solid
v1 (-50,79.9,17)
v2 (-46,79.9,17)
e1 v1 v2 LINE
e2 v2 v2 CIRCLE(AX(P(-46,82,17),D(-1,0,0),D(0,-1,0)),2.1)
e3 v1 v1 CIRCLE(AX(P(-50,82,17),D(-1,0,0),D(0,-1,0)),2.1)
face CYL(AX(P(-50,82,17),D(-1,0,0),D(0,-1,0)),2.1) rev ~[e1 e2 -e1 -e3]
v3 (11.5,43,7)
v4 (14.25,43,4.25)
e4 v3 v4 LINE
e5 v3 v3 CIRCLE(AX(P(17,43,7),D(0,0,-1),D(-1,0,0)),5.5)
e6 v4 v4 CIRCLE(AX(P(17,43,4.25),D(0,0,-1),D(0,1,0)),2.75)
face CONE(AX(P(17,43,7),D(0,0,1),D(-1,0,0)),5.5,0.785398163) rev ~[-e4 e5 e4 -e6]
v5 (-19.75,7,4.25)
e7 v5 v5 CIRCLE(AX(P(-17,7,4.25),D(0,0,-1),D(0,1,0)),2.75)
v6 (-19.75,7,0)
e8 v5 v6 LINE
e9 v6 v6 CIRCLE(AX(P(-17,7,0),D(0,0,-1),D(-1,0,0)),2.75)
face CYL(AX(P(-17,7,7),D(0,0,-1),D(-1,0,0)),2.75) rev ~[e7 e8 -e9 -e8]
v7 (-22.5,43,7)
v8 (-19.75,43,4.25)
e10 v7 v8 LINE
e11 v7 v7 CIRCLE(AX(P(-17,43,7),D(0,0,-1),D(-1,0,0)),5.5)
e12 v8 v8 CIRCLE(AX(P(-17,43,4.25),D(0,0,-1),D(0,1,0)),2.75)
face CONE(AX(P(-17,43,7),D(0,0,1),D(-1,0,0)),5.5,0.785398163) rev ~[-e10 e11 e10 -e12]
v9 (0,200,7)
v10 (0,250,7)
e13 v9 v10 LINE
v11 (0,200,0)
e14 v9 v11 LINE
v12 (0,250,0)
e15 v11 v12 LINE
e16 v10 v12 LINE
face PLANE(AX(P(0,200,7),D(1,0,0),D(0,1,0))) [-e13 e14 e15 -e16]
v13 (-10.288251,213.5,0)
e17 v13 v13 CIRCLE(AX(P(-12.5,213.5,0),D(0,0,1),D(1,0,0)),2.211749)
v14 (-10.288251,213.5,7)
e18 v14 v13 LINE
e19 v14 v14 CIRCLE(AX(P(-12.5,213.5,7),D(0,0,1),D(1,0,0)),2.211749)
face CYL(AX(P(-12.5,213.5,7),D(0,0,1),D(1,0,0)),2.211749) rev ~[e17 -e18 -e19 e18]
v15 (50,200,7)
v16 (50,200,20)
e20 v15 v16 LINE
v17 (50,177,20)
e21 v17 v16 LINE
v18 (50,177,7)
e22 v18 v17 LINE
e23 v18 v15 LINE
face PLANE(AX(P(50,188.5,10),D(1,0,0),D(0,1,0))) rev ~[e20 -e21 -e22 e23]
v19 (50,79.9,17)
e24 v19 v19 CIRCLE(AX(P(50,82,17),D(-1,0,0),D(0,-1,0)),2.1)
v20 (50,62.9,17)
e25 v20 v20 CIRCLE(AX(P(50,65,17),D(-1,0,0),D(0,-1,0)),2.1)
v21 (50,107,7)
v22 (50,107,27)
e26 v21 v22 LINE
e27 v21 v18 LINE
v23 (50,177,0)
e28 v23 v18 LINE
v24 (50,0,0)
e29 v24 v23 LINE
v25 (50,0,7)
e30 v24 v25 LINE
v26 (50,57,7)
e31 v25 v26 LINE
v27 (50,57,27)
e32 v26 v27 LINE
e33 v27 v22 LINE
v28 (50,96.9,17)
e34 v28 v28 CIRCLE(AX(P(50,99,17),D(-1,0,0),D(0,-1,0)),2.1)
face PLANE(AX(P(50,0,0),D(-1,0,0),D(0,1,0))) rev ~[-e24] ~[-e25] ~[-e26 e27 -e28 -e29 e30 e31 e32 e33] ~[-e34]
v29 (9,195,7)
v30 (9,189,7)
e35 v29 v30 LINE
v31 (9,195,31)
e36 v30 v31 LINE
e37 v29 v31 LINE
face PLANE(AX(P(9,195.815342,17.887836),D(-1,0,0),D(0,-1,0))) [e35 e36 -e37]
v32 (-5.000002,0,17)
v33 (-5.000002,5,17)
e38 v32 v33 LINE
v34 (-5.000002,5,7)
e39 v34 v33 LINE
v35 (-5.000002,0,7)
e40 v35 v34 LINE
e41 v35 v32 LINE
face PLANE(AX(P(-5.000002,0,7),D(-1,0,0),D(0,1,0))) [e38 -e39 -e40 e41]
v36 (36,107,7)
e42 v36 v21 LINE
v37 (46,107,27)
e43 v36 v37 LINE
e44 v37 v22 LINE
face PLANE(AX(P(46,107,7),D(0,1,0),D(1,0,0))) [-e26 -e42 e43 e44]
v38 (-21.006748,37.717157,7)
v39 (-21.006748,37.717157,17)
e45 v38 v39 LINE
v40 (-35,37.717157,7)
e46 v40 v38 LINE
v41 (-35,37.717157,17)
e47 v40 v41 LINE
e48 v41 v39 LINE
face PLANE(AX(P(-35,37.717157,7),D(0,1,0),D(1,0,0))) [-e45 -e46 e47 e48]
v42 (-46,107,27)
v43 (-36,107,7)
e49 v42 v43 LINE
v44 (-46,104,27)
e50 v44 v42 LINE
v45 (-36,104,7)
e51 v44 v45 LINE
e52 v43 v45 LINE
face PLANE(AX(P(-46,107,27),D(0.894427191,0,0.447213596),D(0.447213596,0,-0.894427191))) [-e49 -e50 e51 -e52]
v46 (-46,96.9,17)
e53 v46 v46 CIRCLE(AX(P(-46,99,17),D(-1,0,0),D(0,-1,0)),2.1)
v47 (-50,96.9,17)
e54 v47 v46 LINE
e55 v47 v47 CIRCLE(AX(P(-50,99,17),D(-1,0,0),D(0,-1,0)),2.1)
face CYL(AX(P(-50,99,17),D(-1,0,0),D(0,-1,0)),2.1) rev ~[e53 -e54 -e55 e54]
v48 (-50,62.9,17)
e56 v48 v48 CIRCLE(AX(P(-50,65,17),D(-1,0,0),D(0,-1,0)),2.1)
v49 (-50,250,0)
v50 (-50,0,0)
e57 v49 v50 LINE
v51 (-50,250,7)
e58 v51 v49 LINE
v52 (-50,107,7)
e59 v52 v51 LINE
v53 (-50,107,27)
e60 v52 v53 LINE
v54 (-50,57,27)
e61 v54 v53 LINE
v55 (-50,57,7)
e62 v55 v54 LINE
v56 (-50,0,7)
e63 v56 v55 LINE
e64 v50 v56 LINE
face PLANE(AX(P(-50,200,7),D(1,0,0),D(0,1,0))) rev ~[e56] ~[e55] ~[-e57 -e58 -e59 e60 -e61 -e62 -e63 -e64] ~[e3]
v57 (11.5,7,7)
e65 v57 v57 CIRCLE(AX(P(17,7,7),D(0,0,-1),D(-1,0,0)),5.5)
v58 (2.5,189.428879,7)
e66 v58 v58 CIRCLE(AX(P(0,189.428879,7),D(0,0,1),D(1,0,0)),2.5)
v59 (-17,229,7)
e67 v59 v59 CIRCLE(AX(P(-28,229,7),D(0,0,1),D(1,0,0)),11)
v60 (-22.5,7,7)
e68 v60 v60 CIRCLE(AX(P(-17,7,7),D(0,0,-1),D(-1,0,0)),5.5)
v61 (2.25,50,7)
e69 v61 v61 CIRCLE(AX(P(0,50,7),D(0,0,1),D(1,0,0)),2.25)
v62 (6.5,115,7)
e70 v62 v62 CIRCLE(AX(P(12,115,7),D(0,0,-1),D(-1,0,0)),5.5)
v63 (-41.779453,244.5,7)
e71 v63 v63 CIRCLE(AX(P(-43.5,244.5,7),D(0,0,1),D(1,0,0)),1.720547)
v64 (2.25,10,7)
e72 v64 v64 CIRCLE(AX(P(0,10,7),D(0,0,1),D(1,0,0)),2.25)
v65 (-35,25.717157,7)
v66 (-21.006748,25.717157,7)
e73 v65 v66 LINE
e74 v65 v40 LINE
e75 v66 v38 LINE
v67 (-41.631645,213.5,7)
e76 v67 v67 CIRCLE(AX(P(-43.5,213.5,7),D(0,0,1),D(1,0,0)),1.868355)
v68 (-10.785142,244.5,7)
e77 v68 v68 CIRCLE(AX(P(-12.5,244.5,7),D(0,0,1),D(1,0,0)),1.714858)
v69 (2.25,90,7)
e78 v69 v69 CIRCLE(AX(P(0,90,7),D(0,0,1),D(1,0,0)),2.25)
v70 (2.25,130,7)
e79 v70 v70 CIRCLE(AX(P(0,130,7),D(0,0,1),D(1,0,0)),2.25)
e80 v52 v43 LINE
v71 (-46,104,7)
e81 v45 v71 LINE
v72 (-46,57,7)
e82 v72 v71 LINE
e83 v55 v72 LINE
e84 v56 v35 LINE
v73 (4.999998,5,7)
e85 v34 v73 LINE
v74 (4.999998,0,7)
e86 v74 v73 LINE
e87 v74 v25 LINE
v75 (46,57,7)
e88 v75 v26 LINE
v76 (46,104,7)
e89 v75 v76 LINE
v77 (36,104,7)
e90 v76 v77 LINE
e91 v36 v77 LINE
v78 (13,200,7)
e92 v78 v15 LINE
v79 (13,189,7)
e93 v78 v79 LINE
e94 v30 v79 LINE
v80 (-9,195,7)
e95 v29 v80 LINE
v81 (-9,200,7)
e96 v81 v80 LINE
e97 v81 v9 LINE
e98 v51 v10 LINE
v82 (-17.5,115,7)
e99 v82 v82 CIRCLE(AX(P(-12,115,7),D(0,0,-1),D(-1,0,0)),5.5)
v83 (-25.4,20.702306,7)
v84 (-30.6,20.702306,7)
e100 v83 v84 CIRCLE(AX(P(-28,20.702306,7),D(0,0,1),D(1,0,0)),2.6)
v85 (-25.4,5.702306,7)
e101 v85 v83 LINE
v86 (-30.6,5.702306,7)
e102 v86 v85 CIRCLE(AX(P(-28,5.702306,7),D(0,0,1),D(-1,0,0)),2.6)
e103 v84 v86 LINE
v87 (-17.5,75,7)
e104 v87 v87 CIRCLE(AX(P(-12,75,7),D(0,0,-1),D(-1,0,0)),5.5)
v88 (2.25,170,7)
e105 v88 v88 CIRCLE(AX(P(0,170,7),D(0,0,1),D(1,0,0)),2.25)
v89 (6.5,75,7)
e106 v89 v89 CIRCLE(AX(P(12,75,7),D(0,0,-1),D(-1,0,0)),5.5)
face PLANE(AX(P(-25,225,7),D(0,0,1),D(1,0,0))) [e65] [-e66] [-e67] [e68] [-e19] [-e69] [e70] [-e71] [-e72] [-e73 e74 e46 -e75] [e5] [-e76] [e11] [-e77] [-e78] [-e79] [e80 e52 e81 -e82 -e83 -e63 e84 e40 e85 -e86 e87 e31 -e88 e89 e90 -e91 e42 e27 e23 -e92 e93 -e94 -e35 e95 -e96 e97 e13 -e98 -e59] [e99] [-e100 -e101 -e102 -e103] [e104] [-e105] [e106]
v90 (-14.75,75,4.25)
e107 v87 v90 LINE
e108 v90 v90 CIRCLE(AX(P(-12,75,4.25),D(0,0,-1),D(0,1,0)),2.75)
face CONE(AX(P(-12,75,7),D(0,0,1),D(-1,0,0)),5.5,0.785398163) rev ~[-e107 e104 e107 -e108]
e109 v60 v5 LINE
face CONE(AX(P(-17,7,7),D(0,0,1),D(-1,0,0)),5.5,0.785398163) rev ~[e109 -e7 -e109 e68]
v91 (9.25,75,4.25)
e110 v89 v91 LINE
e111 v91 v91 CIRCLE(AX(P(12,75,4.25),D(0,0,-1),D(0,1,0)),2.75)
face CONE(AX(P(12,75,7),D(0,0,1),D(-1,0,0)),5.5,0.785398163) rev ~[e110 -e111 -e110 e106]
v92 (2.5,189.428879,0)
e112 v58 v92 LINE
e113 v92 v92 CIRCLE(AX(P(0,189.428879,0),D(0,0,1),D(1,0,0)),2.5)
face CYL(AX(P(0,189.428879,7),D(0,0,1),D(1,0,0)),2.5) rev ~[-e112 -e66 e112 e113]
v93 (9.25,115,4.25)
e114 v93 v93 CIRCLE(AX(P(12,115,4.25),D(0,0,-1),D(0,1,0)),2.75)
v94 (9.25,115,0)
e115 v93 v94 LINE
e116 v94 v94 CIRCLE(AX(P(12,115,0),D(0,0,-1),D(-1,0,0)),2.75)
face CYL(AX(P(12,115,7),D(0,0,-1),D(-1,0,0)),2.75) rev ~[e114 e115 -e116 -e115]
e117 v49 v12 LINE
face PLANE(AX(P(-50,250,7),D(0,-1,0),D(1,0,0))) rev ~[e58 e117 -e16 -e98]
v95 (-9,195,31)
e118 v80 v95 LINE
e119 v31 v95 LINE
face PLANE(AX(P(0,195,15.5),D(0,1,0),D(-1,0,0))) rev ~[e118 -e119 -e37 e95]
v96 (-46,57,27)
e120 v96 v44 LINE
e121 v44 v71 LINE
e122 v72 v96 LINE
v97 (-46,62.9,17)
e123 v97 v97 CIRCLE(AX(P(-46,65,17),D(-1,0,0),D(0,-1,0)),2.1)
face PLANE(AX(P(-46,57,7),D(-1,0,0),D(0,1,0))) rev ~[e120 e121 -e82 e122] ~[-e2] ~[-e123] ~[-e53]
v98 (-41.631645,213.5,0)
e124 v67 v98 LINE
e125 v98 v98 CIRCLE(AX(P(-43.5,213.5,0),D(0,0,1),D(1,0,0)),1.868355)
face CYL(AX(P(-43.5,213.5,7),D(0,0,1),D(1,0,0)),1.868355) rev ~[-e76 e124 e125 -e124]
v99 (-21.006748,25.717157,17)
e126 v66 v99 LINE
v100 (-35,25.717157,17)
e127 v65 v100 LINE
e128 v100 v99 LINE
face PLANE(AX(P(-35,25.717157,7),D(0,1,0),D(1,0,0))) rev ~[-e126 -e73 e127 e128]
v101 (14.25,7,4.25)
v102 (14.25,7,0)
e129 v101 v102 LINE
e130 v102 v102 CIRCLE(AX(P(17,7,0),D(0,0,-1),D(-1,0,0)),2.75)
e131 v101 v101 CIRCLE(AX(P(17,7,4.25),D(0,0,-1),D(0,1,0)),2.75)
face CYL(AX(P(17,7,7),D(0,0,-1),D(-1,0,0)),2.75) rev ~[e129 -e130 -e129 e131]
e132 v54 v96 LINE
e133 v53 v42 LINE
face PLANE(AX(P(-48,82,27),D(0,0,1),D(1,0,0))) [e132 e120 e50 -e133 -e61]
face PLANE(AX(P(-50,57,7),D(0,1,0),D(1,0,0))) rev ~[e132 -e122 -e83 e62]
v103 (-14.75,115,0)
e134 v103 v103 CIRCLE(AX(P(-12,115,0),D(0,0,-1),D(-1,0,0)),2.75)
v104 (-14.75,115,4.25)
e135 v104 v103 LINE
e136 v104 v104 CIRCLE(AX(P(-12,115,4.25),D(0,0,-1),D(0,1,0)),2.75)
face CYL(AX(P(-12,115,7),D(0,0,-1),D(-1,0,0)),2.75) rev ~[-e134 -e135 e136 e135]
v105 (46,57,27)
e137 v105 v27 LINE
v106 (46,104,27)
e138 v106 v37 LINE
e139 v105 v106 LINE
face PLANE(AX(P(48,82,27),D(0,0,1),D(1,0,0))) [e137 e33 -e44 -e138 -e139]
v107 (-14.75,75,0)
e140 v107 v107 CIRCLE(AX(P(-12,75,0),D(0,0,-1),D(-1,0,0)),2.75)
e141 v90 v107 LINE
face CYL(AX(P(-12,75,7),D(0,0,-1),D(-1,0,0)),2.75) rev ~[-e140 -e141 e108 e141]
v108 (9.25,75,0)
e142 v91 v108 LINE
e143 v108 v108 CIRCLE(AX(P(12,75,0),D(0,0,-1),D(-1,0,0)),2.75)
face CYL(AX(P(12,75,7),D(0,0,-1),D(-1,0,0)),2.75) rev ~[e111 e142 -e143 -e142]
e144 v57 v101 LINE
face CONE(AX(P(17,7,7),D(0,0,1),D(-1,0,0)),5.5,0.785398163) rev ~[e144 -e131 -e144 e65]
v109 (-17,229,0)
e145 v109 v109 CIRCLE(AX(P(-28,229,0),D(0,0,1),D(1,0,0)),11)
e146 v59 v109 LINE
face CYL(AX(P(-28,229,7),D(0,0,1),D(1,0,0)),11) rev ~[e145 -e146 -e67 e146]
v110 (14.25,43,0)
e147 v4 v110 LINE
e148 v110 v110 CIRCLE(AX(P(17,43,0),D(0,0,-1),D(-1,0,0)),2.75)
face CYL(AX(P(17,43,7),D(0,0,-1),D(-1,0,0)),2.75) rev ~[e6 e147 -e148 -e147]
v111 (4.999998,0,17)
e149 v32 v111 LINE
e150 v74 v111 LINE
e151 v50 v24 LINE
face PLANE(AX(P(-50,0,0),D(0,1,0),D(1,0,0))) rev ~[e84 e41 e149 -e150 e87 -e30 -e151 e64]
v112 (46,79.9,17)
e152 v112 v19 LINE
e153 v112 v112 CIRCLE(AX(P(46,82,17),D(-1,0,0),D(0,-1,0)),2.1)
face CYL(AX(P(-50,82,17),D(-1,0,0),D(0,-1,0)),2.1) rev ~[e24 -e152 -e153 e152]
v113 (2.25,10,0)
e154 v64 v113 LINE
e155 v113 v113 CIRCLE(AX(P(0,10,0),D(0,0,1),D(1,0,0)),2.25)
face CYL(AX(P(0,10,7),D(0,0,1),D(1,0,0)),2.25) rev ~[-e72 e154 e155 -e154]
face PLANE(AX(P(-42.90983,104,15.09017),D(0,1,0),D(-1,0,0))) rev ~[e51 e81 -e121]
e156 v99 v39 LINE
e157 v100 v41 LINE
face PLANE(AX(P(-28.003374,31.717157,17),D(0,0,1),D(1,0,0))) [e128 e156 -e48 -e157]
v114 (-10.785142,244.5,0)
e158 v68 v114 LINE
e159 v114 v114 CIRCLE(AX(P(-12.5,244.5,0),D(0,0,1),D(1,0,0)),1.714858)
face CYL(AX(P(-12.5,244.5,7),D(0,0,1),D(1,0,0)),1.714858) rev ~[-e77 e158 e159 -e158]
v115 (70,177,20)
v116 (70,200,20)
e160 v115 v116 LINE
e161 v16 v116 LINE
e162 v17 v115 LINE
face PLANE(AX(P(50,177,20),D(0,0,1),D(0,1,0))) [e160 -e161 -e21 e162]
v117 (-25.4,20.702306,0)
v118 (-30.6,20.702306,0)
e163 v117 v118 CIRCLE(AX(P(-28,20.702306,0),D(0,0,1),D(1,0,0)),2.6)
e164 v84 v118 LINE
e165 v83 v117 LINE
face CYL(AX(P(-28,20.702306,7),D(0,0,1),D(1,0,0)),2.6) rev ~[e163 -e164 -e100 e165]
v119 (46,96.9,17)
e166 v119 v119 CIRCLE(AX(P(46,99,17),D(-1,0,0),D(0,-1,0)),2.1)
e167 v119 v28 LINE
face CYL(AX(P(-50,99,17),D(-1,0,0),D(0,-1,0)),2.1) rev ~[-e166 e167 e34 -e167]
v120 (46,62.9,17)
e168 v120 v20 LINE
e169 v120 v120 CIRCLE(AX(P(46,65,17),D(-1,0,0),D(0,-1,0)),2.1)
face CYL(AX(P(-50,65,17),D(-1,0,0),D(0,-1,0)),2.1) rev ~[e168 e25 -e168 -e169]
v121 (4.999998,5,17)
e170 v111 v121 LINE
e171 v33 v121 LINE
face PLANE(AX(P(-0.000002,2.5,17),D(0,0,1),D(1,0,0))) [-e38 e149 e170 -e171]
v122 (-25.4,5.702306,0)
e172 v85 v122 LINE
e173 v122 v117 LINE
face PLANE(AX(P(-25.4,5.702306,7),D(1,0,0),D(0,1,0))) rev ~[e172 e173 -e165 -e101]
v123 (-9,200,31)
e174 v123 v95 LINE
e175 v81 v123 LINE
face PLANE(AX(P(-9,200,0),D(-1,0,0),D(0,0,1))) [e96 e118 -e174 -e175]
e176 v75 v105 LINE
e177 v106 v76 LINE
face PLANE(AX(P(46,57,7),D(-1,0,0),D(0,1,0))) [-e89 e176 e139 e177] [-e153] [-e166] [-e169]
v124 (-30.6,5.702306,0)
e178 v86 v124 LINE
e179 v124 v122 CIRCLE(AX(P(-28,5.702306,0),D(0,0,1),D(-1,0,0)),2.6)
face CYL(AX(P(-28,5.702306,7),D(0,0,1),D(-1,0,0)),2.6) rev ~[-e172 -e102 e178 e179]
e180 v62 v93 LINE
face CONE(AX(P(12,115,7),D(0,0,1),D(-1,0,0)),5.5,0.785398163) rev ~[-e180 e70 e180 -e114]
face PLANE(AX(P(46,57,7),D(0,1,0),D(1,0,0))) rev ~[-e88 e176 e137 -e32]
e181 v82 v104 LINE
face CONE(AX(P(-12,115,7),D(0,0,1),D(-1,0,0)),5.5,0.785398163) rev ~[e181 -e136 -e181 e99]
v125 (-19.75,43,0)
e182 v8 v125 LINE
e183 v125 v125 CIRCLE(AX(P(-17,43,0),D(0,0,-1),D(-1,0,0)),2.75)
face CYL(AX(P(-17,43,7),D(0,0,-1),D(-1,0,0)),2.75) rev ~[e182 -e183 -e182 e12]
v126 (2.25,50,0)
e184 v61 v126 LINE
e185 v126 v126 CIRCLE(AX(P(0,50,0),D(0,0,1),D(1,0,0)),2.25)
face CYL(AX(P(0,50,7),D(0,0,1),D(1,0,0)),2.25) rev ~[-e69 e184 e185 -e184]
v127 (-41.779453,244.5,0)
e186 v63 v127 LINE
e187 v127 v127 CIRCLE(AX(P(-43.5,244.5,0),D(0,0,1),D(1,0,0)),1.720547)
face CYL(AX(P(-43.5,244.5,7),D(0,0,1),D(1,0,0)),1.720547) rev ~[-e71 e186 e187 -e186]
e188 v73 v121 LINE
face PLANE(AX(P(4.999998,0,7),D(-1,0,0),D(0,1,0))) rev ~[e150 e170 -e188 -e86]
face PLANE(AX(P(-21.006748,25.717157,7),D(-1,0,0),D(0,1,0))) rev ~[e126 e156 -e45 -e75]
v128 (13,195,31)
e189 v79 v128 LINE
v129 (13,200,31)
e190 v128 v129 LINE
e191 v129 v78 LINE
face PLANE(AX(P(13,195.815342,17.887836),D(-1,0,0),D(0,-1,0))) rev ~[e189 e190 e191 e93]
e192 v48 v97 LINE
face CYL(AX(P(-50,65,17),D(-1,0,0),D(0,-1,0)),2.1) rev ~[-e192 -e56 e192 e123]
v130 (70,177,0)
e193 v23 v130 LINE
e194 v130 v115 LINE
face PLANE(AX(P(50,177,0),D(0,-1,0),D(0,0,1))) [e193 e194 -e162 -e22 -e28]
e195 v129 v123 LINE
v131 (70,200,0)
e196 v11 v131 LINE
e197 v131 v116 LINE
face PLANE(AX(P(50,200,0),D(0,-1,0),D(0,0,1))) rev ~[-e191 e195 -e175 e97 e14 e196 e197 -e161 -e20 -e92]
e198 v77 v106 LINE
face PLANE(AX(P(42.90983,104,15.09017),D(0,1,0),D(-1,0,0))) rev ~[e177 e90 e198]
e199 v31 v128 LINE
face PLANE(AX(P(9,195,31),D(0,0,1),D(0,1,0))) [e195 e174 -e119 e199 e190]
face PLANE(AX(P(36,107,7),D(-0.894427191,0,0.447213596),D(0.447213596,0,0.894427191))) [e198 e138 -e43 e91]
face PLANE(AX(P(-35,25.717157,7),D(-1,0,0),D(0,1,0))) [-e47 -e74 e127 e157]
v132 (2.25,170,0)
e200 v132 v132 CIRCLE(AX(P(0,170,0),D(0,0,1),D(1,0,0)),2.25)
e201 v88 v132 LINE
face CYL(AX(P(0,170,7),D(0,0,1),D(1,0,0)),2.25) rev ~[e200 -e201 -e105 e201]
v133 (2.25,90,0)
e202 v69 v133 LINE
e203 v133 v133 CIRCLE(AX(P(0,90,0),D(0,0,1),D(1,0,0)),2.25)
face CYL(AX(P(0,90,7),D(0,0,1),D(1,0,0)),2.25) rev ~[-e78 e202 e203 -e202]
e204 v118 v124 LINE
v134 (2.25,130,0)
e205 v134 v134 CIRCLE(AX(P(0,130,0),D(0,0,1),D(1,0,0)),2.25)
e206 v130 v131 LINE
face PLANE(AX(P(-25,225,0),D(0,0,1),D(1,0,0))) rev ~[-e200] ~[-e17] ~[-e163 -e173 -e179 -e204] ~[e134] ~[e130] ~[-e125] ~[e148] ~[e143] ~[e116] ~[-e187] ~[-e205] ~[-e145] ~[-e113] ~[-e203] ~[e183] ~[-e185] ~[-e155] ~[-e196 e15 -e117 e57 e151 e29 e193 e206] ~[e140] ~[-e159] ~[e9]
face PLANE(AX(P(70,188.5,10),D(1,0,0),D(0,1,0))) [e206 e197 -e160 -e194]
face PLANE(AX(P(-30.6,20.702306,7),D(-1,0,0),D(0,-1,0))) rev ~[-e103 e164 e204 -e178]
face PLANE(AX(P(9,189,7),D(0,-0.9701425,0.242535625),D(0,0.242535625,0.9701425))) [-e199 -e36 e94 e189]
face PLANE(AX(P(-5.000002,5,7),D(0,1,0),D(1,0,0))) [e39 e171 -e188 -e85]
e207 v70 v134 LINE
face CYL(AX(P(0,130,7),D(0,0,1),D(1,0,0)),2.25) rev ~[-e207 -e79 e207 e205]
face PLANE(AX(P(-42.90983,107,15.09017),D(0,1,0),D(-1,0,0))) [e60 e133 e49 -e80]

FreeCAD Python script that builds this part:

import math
import FreeCAD as App
import Part
import Sketcher

V = App.Vector

doc = App.newDocument("Part")
body = doc.addObject("PartDesign::Body", "Body")

# Sketch on XY plane
sketch1 = body.newObject("Sketcher::SketchObject", "Sketch")
sketch1.AttachmentSupport = (doc.getObject("XY_Plane"), [""])
sketch1.MapMode = "FlatFace"
sketch1.addGeometry(Part.LineSegment(V(-50, 200, 0), V(-50, 0, 0)), False)
sketch1.addGeometry(Part.LineSegment(V(-50, 0, 0), V(50, 0, 0)), False)
sketch1.addGeometry(Part.LineSegment(V(50, 0, 0), V(50, 200, 0)), False)
sketch1.addGeometry(Part.LineSegment(V(50, 200, 0), V(-50, 200, 0)), False)
sketch1.addConstraint(Sketcher.Constraint("Coincident", 0, 2, 1, 1))
sketch1.addConstraint(Sketcher.Constraint("Coincident", 1, 2, 2, 1))
sketch1.addConstraint(Sketcher.Constraint("Coincident", 2, 2, 3, 1))
sketch1.addConstraint(Sketcher.Constraint("Coincident", 3, 2, 0, 1))
sketch1.addConstraint(Sketcher.Constraint("Vertical", 0))
sketch1.addConstraint(Sketcher.Constraint("Horizontal", 1))
sketch1.addConstraint(Sketcher.Constraint("Vertical", 2))
sketch1.addConstraint(Sketcher.Constraint("Horizontal", 3))
sketch1.addConstraint(Sketcher.Constraint("Symmetric", 0, 2, 1, 2, -1, 1))
sketch1.addConstraint(Sketcher.Constraint("DistanceX", 1, 1, 1, 2, 100.0))
sketch1.addConstraint(Sketcher.Constraint("DistanceY", 0, 2, 0, 1, 200.0))
pad1 = body.newObject("PartDesign::Pad", "Pad")
pad1.Profile = sketch1
pad1.Length = 7

# Sketch on XY plane
sketch2 = body.newObject("Sketcher::SketchObject", "Sketch001")
sketch2.AttachmentSupport = (doc.getObject("XY_Plane"), [""])
sketch2.MapMode = "FlatFace"
sketch2.AttachmentOffset = App.Placement(V(0, 0, 7), App.Rotation())
sketch2.addGeometry(Part.Circle(V(17, 7, 0), V(0, 0, 1), 2.8), False)
sketch2.addGeometry(Part.Circle(V(17, 43, 0), V(0, 0, 1), 2.8), False)
sketch2.addGeometry(Part.Circle(V(-17, 43, 0), V(0, 0, 1), 2.8), False)
sketch2.addGeometry(Part.Circle(V(-17, 7, 0), V(0, 0, 1), 2.8), False)
sketch2.addGeometry(Part.Circle(V(12, 115, 0), V(0, 0, 1), 2.8), False)
sketch2.addGeometry(Part.Circle(V(12, 75, 0), V(0, 0, 1), 2.8), False)
sketch2.addGeometry(Part.Circle(V(-12, 115, 0), V(0, 0, 1), 2.8), False)
sketch2.addGeometry(Part.Circle(V(-12, 75, 0), V(0, 0, 1), 2.8), False)
sketch2.addConstraint(Sketcher.Constraint("Equal", 0, 1))
sketch2.addConstraint(Sketcher.Constraint("Equal", 1, 2))
sketch2.addConstraint(Sketcher.Constraint("Equal", 2, 3))
sketch2.addConstraint(Sketcher.Constraint("Equal", 3, 4))
sketch2.addConstraint(Sketcher.Constraint("Equal", 4, 5))
sketch2.addConstraint(Sketcher.Constraint("Equal", 5, 6))
sketch2.addConstraint(Sketcher.Constraint("Equal", 6, 7))
sketch2.addConstraint(Sketcher.Constraint("Symmetric", 1, 3, 2, 3, -2))
sketch2.addConstraint(Sketcher.Constraint("Symmetric", 0, 3, 3, 3, -2))
sketch2.addConstraint(Sketcher.Constraint("Symmetric", 4, 3, 6, 3, -2))
sketch2.addConstraint(Sketcher.Constraint("Symmetric", 5, 3, 7, 3, -2))
sketch2.addConstraint(Sketcher.Constraint("Vertical", 0, 3, 1, 3))
sketch2.addConstraint(Sketcher.Constraint("Vertical", 4, 3, 5, 3))
sketch2.addConstraint(Sketcher.Constraint("Diameter", 0, 5.5))
sketch2.addConstraint(Sketcher.Constraint("DistanceX", -1, 1, 0, 3, 17.0))
sketch2.addConstraint(Sketcher.Constraint("DistanceY", -1, 1, 0, 3, 7.0))
sketch2.addConstraint(Sketcher.Constraint("DistanceY", -1, 1, 1, 3, 43.0))
sketch2.addConstraint(Sketcher.Constraint("DistanceX", -1, 1, 4, 3, 12.0))
sketch2.addConstraint(Sketcher.Constraint("DistanceY", -1, 1, 4, 3, 115.0))
sketch2.addConstraint(Sketcher.Constraint("DistanceY", -1, 1, 5, 3, 75.0))
doc.recompute()
hole = body.newObject("PartDesign::Hole", "Hole")
hole.Profile = sketch2
hole.ThreadType = "None"
hole.Diameter = 5.5
hole.DepthType = "ThroughAll"
hole.HoleCutType = "Countersink"
hole.HoleCutDiameter = 11
hole.HoleCutCountersinkAngle = 90

# Sketch on XY plane
sketch3 = body.newObject("Sketcher::SketchObject", "Sketch002")
sketch3.AttachmentSupport = (doc.getObject("XY_Plane"), [""])
sketch3.MapMode = "FlatFace"
sketch3.AttachmentOffset = App.Placement(V(0, 0, 7), App.Rotation())
sketch3.addGeometry(Part.Circle(V(0, 10, 0), V(0, 0, 1), 2.2), False)
sketch3.addGeometry(Part.Circle(V(0, 50, 0), V(0, 0, 1), 2.2), False)
sketch3.addGeometry(Part.Circle(V(0, 90, 0), V(0, 0, 1), 2.2), False)
sketch3.addGeometry(Part.Circle(V(0, 130, 0), V(0, 0, 1), 2.2), False)
sketch3.addGeometry(Part.Circle(V(0, 170, 0), V(0, 0, 1), 2.2), False)
sketch3.addConstraint(Sketcher.Constraint("Equal", 0, 1))
sketch3.addConstraint(Sketcher.Constraint("Equal", 1, 2))
sketch3.addConstraint(Sketcher.Constraint("Equal", 2, 3))
sketch3.addConstraint(Sketcher.Constraint("Equal", 3, 4))
sketch3.addConstraint(Sketcher.Constraint("PointOnObject", 0, 3, -2))
sketch3.addConstraint(Sketcher.Constraint("PointOnObject", 1, 3, -2))
sketch3.addConstraint(Sketcher.Constraint("PointOnObject", 2, 3, -2))
sketch3.addConstraint(Sketcher.Constraint("PointOnObject", 3, 3, -2))
sketch3.addConstraint(Sketcher.Constraint("PointOnObject", 4, 3, -2))
sketch3.addConstraint(Sketcher.Constraint("Diameter", 0, 4.5))
sketch3.addConstraint(Sketcher.Constraint("DistanceY", -1, 1, 0, 3, 10.0))
sketch3.addConstraint(Sketcher.Constraint("DistanceY", -1, 1, 1, 3, 50.0))
sketch3.addConstraint(Sketcher.Constraint("DistanceY", -1, 1, 2, 3, 90.0))
sketch3.addConstraint(Sketcher.Constraint("DistanceY", -1, 1, 3, 3, 130.0))
sketch3.addConstraint(Sketcher.Constraint("DistanceY", -1, 1, 4, 3, 170.0))
pocket1 = body.newObject("PartDesign::Pocket", "Pocket")
pocket1.Profile = sketch3
pocket1.Type = "ThroughAll"

# Sketch on XY plane
sketch4 = body.newObject("Sketcher::SketchObject", "Sketch003")
sketch4.AttachmentSupport = (doc.getObject("XY_Plane"), [""])
sketch4.MapMode = "FlatFace"
sketch4.AttachmentOffset = App.Placement(V(0, 0, 7), App.Rotation())
sketch4.addGeometry(Part.LineSegment(V(-5, 5, 0), V(-5, 0, 0)), False)
sketch4.addGeometry(Part.LineSegment(V(-5, 0, 0), V(5, 0, 0)), False)
sketch4.addGeometry(Part.LineSegment(V(5, 0, 0), V(5, 5, 0)), False)
sketch4.addGeometry(Part.LineSegment(V(5, 5, 0), V(-5, 5, 0)), False)
sketch4.addConstraint(Sketcher.Constraint("Coincident", 0, 2, 1, 1))
sketch4.addConstraint(Sketcher.Constraint("Coincident", 1, 2, 2, 1))
sketch4.addConstraint(Sketcher.Constraint("Coincident", 2, 2, 3, 1))
sketch4.addConstraint(Sketcher.Constraint("Coincident", 3, 2, 0, 1))
sketch4.addConstraint(Sketcher.Constraint("Vertical", 0))
sketch4.addConstraint(Sketcher.Constraint("Horizontal", 1))
sketch4.addConstraint(Sketcher.Constraint("Vertical", 2))
sketch4.addConstraint(Sketcher.Constraint("Horizontal", 3))
sketch4.addConstraint(Sketcher.Constraint("Symmetric", 0, 2, 1, 2, -1, 1))
sketch4.addConstraint(Sketcher.Constraint("DistanceX", 1, 1, 1, 2, 10.0))
sketch4.addConstraint(Sketcher.Constraint("DistanceY", 0, 2, 0, 1, 5.0))
pad2 = body.newObject("PartDesign::Pad", "Pad001")
pad2.Profile = sketch4
pad2.Length = 10

# Sketch on XY plane
sketch5 = body.newObject("Sketcher::SketchObject", "Sketch004")
sketch5.AttachmentSupport = (doc.getObject("XY_Plane"), [""])
sketch5.MapMode = "FlatFace"
sketch5.AttachmentOffset = App.Placement(V(0, 0, 7), App.Rotation())
sketch5.addGeometry(Part.LineSegment(V(-50, 107, 0), V(-50, 57, 0)), False)
sketch5.addGeometry(Part.LineSegment(V(-50, 57, 0), V(-46, 57, 0)), False)
sketch5.addGeometry(Part.LineSegment(V(-46, 57, 0), V(-46, 107, 0)), False)
sketch5.addGeometry(Part.LineSegment(V(-46, 107, 0), V(-50, 107, 0)), False)
sketch5.addGeometry(Part.LineSegment(V(46, 107, 0), V(46, 57, 0)), False)
sketch5.addGeometry(Part.LineSegment(V(46, 57, 0), V(50, 57, 0)), False)
sketch5.addGeometry(Part.LineSegment(V(50, 57, 0), V(50, 107, 0)), False)
sketch5.addGeometry(Part.LineSegment(V(50, 107, 0), V(46, 107, 0)), False)
sketch5.addConstraint(Sketcher.Constraint("Coincident", 0, 2, 1, 1))
sketch5.addConstraint(Sketcher.Constraint("Coincident", 1, 2, 2, 1))
sketch5.addConstraint(Sketcher.Constraint("Coincident", 2, 2, 3, 1))
sketch5.addConstraint(Sketcher.Constraint("Coincident", 3, 2, 0, 1))
sketch5.addConstraint(Sketcher.Constraint("Coincident", 4, 2, 5, 1))
sketch5.addConstraint(Sketcher.Constraint("Coincident", 5, 2, 6, 1))
sketch5.addConstraint(Sketcher.Constraint("Coincident", 6, 2, 7, 1))
sketch5.addConstraint(Sketcher.Constraint("Coincident", 7, 2, 4, 1))
sketch5.addConstraint(Sketcher.Constraint("Vertical", 0))
sketch5.addConstraint(Sketcher.Constraint("Horizontal", 1))
sketch5.addConstraint(Sketcher.Constraint("Vertical", 2))
sketch5.addConstraint(Sketcher.Constraint("Horizontal", 3))
sketch5.addConstraint(Sketcher.Constraint("Vertical", 4))
sketch5.addConstraint(Sketcher.Constraint("Horizontal", 5))
sketch5.addConstraint(Sketcher.Constraint("Vertical", 6))
sketch5.addConstraint(Sketcher.Constraint("Horizontal", 7))
sketch5.addConstraint(Sketcher.Constraint("Symmetric", 1, 2, 4, 2, -2))
sketch5.addConstraint(Sketcher.Constraint("Symmetric", 3, 2, 6, 2, -2))
sketch5.addConstraint(Sketcher.Constraint("DistanceX", 1, 1, 1, 2, 4.0))
sketch5.addConstraint(Sketcher.Constraint("DistanceY", 0, 2, 0, 1, 50.0))
sketch5.addConstraint(Sketcher.Constraint("DistanceX", 0, 2, -1, 1, 50.0))
sketch5.addConstraint(Sketcher.Constraint("DistanceY", -1, 1, 0, 2, 57.0))
pad3 = body.newObject("PartDesign::Pad", "Pad002")
pad3.Profile = sketch5
pad3.Length = 20

# Sketch on XZ plane
sketch6 = body.newObject("Sketcher::SketchObject", "Sketch005")
sketch6.AttachmentSupport = (doc.getObject("XZ_Plane"), [""])
sketch6.MapMode = "FlatFace"
sketch6.AttachmentOffset = App.Placement(V(0, 0, -107), App.Rotation())
sketch6.addGeometry(Part.LineSegment(V(-46, 7, 0), V(-46, 27, 0)), False)
sketch6.addGeometry(Part.LineSegment(V(-46, 27, 0), V(-36, 7, 0)), False)
sketch6.addGeometry(Part.LineSegment(V(-36, 7, 0), V(-46, 7, 0)), False)
sketch6.addGeometry(Part.LineSegment(V(46, 27, 0), V(46, 7, 0)), False)
sketch6.addGeometry(Part.LineSegment(V(46, 7, 0), V(36, 7, 0)), False)
sketch6.addGeometry(Part.LineSegment(V(36, 7, 0), V(46, 27, 0)), False)
sketch6.addConstraint(Sketcher.Constraint("Coincident", 0, 2, 1, 1))
sketch6.addConstraint(Sketcher.Constraint("Coincident", 1, 2, 2, 1))
sketch6.addConstraint(Sketcher.Constraint("Coincident", 2, 2, 0, 1))
sketch6.addConstraint(Sketcher.Constraint("Coincident", 3, 2, 4, 1))
sketch6.addConstraint(Sketcher.Constraint("Coincident", 4, 2, 5, 1))
sketch6.addConstraint(Sketcher.Constraint("Coincident", 5, 2, 3, 1))
sketch6.addConstraint(Sketcher.Constraint("Vertical", 0))
sketch6.addConstraint(Sketcher.Constraint("Horizontal", 2))
sketch6.addConstraint(Sketcher.Constraint("Vertical", 3))
sketch6.addConstraint(Sketcher.Constraint("Horizontal", 4))
sketch6.addConstraint(Sketcher.Constraint("Symmetric", 2, 2, 3, 2, -2))
sketch6.addConstraint(Sketcher.Constraint("Horizontal", 0, 2, 5, 2))
sketch6.addConstraint(Sketcher.Constraint("Equal", 2, 4))
sketch6.addConstraint(Sketcher.Constraint("DistanceX", 2, 2, 2, 1, 10.0))
sketch6.addConstraint(Sketcher.Constraint("DistanceY", 0, 1, 0, 2, 20.0))
sketch6.addConstraint(Sketcher.Constraint("DistanceX", 0, 2, -1, 1, 46.0))
sketch6.addConstraint(Sketcher.Constraint("DistanceY", -1, 1, 0, 2, 27.0))
pad4 = body.newObject("PartDesign::Pad", "Pad003")
pad4.Profile = sketch6
pad4.Length = 3

# Sketch on XZ plane
sketch7 = body.newObject("Sketcher::SketchObject", "Sketch006")
sketch7.AttachmentSupport = (doc.getObject("XZ_Plane"), [""])
sketch7.MapMode = "FlatFace"
sketch7.AttachmentOffset = App.Placement(V(0, 0, -107), App.Rotation())
sketch7.addGeometry(Part.LineSegment(V(46, 27, 0), V(46, 7, 0)), False)
sketch7.addGeometry(Part.LineSegment(V(46, 7, 0), V(36, 7, 0)), False)
sketch7.addGeometry(Part.LineSegment(V(36, 7, 0), V(46, 27, 0)), False)
sketch7.addGeometry(Part.LineSegment(V(-46, 7, 0), V(-46, 27, 0)), False)
sketch7.addGeometry(Part.LineSegment(V(-46, 27, 0), V(-36, 7, 0)), False)
sketch7.addGeometry(Part.LineSegment(V(-36, 7, 0), V(-46, 7, 0)), False)
sketch7.addConstraint(Sketcher.Constraint("Coincident", 0, 2, 1, 1))
sketch7.addConstraint(Sketcher.Constraint("Coincident", 1, 2, 2, 1))
sketch7.addConstraint(Sketcher.Constraint("Coincident", 2, 2, 0, 1))
sketch7.addConstraint(Sketcher.Constraint("Coincident", 3, 2, 4, 1))
sketch7.addConstraint(Sketcher.Constraint("Coincident", 4, 2, 5, 1))
sketch7.addConstraint(Sketcher.Constraint("Coincident", 5, 2, 3, 1))
sketch7.addConstraint(Sketcher.Constraint("Vertical", 0))
sketch7.addConstraint(Sketcher.Constraint("Horizontal", 1))
sketch7.addConstraint(Sketcher.Constraint("Vertical", 3))
sketch7.addConstraint(Sketcher.Constraint("Horizontal", 5))
sketch7.addConstraint(Sketcher.Constraint("Symmetric", 1, 2, 4, 2, -2))
sketch7.addConstraint(Sketcher.Constraint("Equal", 1, 5))
sketch7.addConstraint(Sketcher.Constraint("DistanceX", 1, 2, 1, 1, 10.0))
sketch7.addConstraint(Sketcher.Constraint("DistanceY", 0, 2, 0, 1, 20.0))
sketch7.addConstraint(Sketcher.Constraint("DistanceX", -1, 1, 0, 2, 46.0))
sketch7.addConstraint(Sketcher.Constraint("DistanceY", -1, 1, 0, 2, 7.0))
sketch7.addConstraint(Sketcher.Constraint("DistanceY", 3, 1, 3, 2, 19.679939))
pad5 = body.newObject("PartDesign::Pad", "Pad004")
pad5.Profile = sketch7
pad5.Length = 3

# Sketch on XY plane
sketch8 = body.newObject("Sketcher::SketchObject", "Sketch007")
sketch8.AttachmentSupport = (doc.getObject("XY_Plane"), [""])
sketch8.MapMode = "FlatFace"
sketch8.AttachmentOffset = App.Placement(V(0, 0, 7), App.Rotation())
sketch8.addGeometry(Part.LineSegment(V(-35, 38, 0), V(-35, 26, 0)), False)
sketch8.addGeometry(Part.LineSegment(V(-35, 26, 0), V(-21, 26, 0)), False)
sketch8.addGeometry(Part.LineSegment(V(-21, 26, 0), V(-21, 38, 0)), False)
sketch8.addGeometry(Part.LineSegment(V(-21, 38, 0), V(-35, 38, 0)), False)
sketch8.addConstraint(Sketcher.Constraint("Coincident", 0, 2, 1, 1))
sketch8.addConstraint(Sketcher.Constraint("Coincident", 1, 2, 2, 1))
sketch8.addConstraint(Sketcher.Constraint("Coincident", 2, 2, 3, 1))
sketch8.addConstraint(Sketcher.Constraint("Coincident", 3, 2, 0, 1))
sketch8.addConstraint(Sketcher.Constraint("Vertical", 0))
sketch8.addConstraint(Sketcher.Constraint("Horizontal", 1))
sketch8.addConstraint(Sketcher.Constraint("Vertical", 2))
sketch8.addConstraint(Sketcher.Constraint("Horizontal", 3))
sketch8.addConstraint(Sketcher.Constraint("DistanceY", 0, 2, 0, 1, 12.0))
sketch8.addConstraint(Sketcher.Constraint("DistanceX", 0, 2, -1, 1, 35.0))
sketch8.addConstraint(Sketcher.Constraint("DistanceX", 1, 1, 1, 2, 13.993252))
sketch8.addConstraint(Sketcher.Constraint("DistanceY", -1, 1, 0, 2, 25.717157))
pad6 = body.newObject("PartDesign::Pad", "Pad005")
pad6.Profile = sketch8
pad6.Length = 10

# Sketch on XZ plane
sketch9 = body.newObject("Sketcher::SketchObject", "Sketch008")
sketch9.AttachmentSupport = (doc.getObject("XZ_Plane"), [""])
sketch9.MapMode = "FlatFace"
sketch9.AttachmentOffset = App.Placement(V(0, 0, -25.717157), App.Rotation())
sketch9.addGeometry(Part.Circle(V(28, 12, 0), V(0, 0, 1), 2), False)
sketch9.addConstraint(Sketcher.Constraint("Diameter", 0, 4.0))
sketch9.addConstraint(Sketcher.Constraint("DistanceX", -1, 1, 0, 3, 28.0))
sketch9.addConstraint(Sketcher.Constraint("DistanceY", -1, 1, 0, 3, 12.0))
pocket2 = body.newObject("PartDesign::Pocket", "Pocket001")
pocket2.Profile = sketch9
pocket2.Length = 14

# Sketch on XZ plane
sketch10 = body.newObject("Sketcher::SketchObject", "Sketch009")
sketch10.AttachmentSupport = (doc.getObject("XZ_Plane"), [""])
sketch10.MapMode = "FlatFace"
sketch10.AttachmentOffset = App.Placement(V(0, 0, -200), App.Rotation())
sketch10.addGeometry(Part.LineSegment(V(9, 31, 0), V(9, 0, 0)), False)
sketch10.addGeometry(Part.LineSegment(V(9, 0, 0), V(-9, 0, 0)), False)
sketch10.addGeometry(Part.LineSegment(V(-9, 0, 0), V(-9, 31, 0)), False)
sketch10.addGeometry(Part.LineSegment(V(-9, 31, 0), V(9, 31, 0)), False)
sketch10.addConstraint(Sketcher.Constraint("Coincident", 0, 2, 1, 1))
sketch10.addConstraint(Sketcher.Constraint("Coincident", 1, 2, 2, 1))
sketch10.addConstraint(Sketcher.Constraint("Coincident", 2, 2, 3, 1))
sketch10.addConstraint(Sketcher.Constraint("Coincident", 3, 2, 0, 1))
sketch10.addConstraint(Sketcher.Constraint("Vertical", 0))
sketch10.addConstraint(Sketcher.Constraint("Horizontal", 1))
sketch10.addConstraint(Sketcher.Constraint("Vertical", 2))
sketch10.addConstraint(Sketcher.Constraint("Horizontal", 3))
sketch10.addConstraint(Sketcher.Constraint("Symmetric", 0, 2, 1, 2, -1, 1))
sketch10.addConstraint(Sketcher.Constraint("DistanceX", 1, 2, 1, 1, 18.0))
sketch10.addConstraint(Sketcher.Constraint("DistanceY", 0, 2, 0, 1, 31.0))
pad7 = body.newObject("PartDesign::Pad", "Pad006")
pad7.Profile = sketch10
pad7.Length = 5

# Sketch on YZ plane
sketch11 = body.newObject("Sketcher::SketchObject", "Sketch010")
sketch11.AttachmentSupport = (doc.getObject("YZ_Plane"), [""])
sketch11.MapMode = "FlatFace"
sketch11.AttachmentOffset = App.Placement(V(0, 0, 9), App.Rotation())
sketch11.addGeometry(Part.LineSegment(V(189, 7, 0), V(200, 7, 0)), False)
sketch11.addGeometry(Part.LineSegment(V(200, 7, 0), V(200, 31, 0)), False)
sketch11.addGeometry(Part.LineSegment(V(200, 31, 0), V(195, 31, 0)), False)
sketch11.addGeometry(Part.LineSegment(V(195, 31, 0), V(189, 7, 0)), False)
sketch11.addConstraint(Sketcher.Constraint("Coincident", 0, 2, 1, 1))
sketch11.addConstraint(Sketcher.Constraint("Coincident", 1, 2, 2, 1))
sketch11.addConstraint(Sketcher.Constraint("Coincident", 2, 2, 3, 1))
sketch11.addConstraint(Sketcher.Constraint("Coincident", 3, 2, 0, 1))
sketch11.addConstraint(Sketcher.Constraint("Horizontal", 0))
sketch11.addConstraint(Sketcher.Constraint("Vertical", 1))
sketch11.addConstraint(Sketcher.Constraint("Horizontal", 2))
sketch11.addConstraint(Sketcher.Constraint("DistanceX", 0, 1, 0, 2, 11.0))
sketch11.addConstraint(Sketcher.Constraint("DistanceX", 2, 2, 2, 1, 5.0))
sketch11.addConstraint(Sketcher.Constraint("DistanceY", 1, 1, 1, 2, 24.0))
sketch11.addConstraint(Sketcher.Constraint("DistanceX", -1, 1, 0, 2, 200.0))
sketch11.addConstraint(Sketcher.Constraint("DistanceY", -1, 1, 0, 2, 7.0))
pad8 = body.newObject("PartDesign::Pad", "Pad007")
pad8.Profile = sketch11
pad8.Length = 4

# Sketch on XY plane
sketch12 = body.newObject("Sketcher::SketchObject", "Sketch011")
sketch12.AttachmentSupport = (doc.getObject("XY_Plane"), [""])
sketch12.MapMode = "FlatFace"
sketch12.AttachmentOffset = App.Placement(V(0, 0, 7), App.Rotation())
sketch12.addGeometry(Part.Circle(V(0, 189.4, 0), V(0, 0, 1), 2.5), False)
sketch12.addConstraint(Sketcher.Constraint("PointOnObject", 0, 3, -2))
sketch12.addConstraint(Sketcher.Constraint("Diameter", 0, 5.0))
sketch12.addConstraint(Sketcher.Constraint("DistanceY", -1, 1, 0, 3, 189.428879))
pocket3 = body.newObject("PartDesign::Pocket", "Pocket002")
pocket3.Profile = sketch12
pocket3.Length = 7

# Sketch on YZ plane
sketch13 = body.newObject("Sketcher::SketchObject", "Sketch012")
sketch13.AttachmentSupport = (doc.getObject("YZ_Plane"), [""])
sketch13.MapMode = "FlatFace"
sketch13.AttachmentOffset = App.Placement(V(0, 0, 50), App.Rotation())
sketch13.addGeometry(Part.LineSegment(V(177, 20, 0), V(177, 0, 0)), False)
sketch13.addGeometry(Part.LineSegment(V(177, 0, 0), V(200, 0, 0)), False)
sketch13.addGeometry(Part.LineSegment(V(200, 0, 0), V(200, 20, 0)), False)
sketch13.addGeometry(Part.LineSegment(V(200, 20, 0), V(177, 20, 0)), False)
sketch13.addConstraint(Sketcher.Constraint("Coincident", 0, 2, 1, 1))
sketch13.addConstraint(Sketcher.Constraint("Coincident", 1, 2, 2, 1))
sketch13.addConstraint(Sketcher.Constraint("Coincident", 2, 2, 3, 1))
sketch13.addConstraint(Sketcher.Constraint("Coincident", 3, 2, 0, 1))
sketch13.addConstraint(Sketcher.Constraint("Vertical", 0))
sketch13.addConstraint(Sketcher.Constraint("Horizontal", 1))
sketch13.addConstraint(Sketcher.Constraint("Vertical", 2))
sketch13.addConstraint(Sketcher.Constraint("Horizontal", 3))
sketch13.addConstraint(Sketcher.Constraint("PointOnObject", 0, 2, -1))
sketch13.addConstraint(Sketcher.Constraint("DistanceX", 1, 1, 1, 2, 23.0))
sketch13.addConstraint(Sketcher.Constraint("DistanceY", 0, 2, 0, 1, 20.0))
sketch13.addConstraint(Sketcher.Constraint("DistanceX", -1, 1, 0, 2, 177.0))
pad9 = body.newObject("PartDesign::Pad", "Pad008")
pad9.Profile = sketch13
pad9.Length = 20

# Sketch on YZ plane
sketch14 = body.newObject("Sketcher::SketchObject", "Sketch013")
sketch14.AttachmentSupport = (doc.getObject("YZ_Plane"), [""])
sketch14.MapMode = "FlatFace"
sketch14.AttachmentOffset = App.Placement(V(0, 0, -50), App.Rotation())
sketch14.addGeometry(Part.Circle(V(99, 17, 0), V(0, 0, 1), 2.1), False)
sketch14.addGeometry(Part.Circle(V(82, 17, 0), V(0, 0, 1), 2.1), False)
sketch14.addGeometry(Part.Circle(V(65, 17, 0), V(0, 0, 1), 2.1), False)
sketch14.addConstraint(Sketcher.Constraint("Equal", 0, 1))
sketch14.addConstraint(Sketcher.Constraint("Equal", 1, 2))
sketch14.addConstraint(Sketcher.Constraint("Horizontal", 0, 3, 1, 3))
sketch14.addConstraint(Sketcher.Constraint("Horizontal", 1, 3, 2, 3))
sketch14.addConstraint(Sketcher.Constraint("Diameter", 0, 4.2))
sketch14.addConstraint(Sketcher.Constraint("DistanceX", -1, 1, 0, 3, 99.0))
sketch14.addConstraint(Sketcher.Constraint("DistanceY", -1, 1, 0, 3, 17.0))
sketch14.addConstraint(Sketcher.Constraint("DistanceX", -1, 1, 1, 3, 82.0))
sketch14.addConstraint(Sketcher.Constraint("DistanceX", -1, 1, 2, 3, 65.0))
pocket4 = body.newObject("PartDesign::Pocket", "Pocket003")
pocket4.Profile = sketch14
pocket4.Length = 120
pocket4.Reversed = True

# Sketch on XY plane
sketch15 = body.newObject("Sketcher::SketchObject", "Sketch014")
sketch15.AttachmentSupport = (doc.getObject("XY_Plane"), [""])
sketch15.MapMode = "FlatFace"
sketch15.AttachmentOffset = App.Placement(V(0, 0, 7), App.Rotation())
sketch15.addGeometry(Part.LineSegment(V(-50, 250, 0), V(-50, 200, 0)), False)
sketch15.addGeometry(Part.LineSegment(V(-50, 200, 0), V(0, 200, 0)), False)
sketch15.addGeometry(Part.LineSegment(V(0, 200, 0), V(0, 250, 0)), False)
sketch15.addGeometry(Part.LineSegment(V(0, 250, 0), V(-50, 250, 0)), False)
sketch15.addGeometry(Part.Circle(V(-43.5, 213.5, 0), V(0, 0, 1), 1.9), False)
sketch15.addGeometry(Part.Circle(V(-12.5, 213.5, 0), V(0, 0, 1), 2.2), False)
sketch15.addGeometry(Part.Circle(V(-28, 229, 0), V(0, 0, 1), 11), False)
sketch15.addGeometry(Part.Circle(V(-43.5, 244.5, 0), V(0, 0, 1), 1.7), False)
sketch15.addGeometry(Part.Circle(V(-12.5, 244.5, 0), V(0, 0, 1), 1.7), False)
sketch15.addConstraint(Sketcher.Constraint("Coincident", 0, 2, 1, 1))
sketch15.addConstraint(Sketcher.Constraint("Coincident", 1, 2, 2, 1))
sketch15.addConstraint(Sketcher.Constraint("Coincident", 2, 2, 3, 1))
sketch15.addConstraint(Sketcher.Constraint("Coincident", 3, 2, 0, 1))
sketch15.addConstraint(Sketcher.Constraint("Vertical", 0))
sketch15.addConstraint(Sketcher.Constraint("Horizontal", 1))
sketch15.addConstraint(Sketcher.Constraint("Vertical", 2))
sketch15.addConstraint(Sketcher.Constraint("Horizontal", 3))
sketch15.addConstraint(Sketcher.Constraint("PointOnObject", 1, 2, -2))
sketch15.addConstraint(Sketcher.Constraint("Horizontal", 4, 3, 5, 3))
sketch15.addConstraint(Sketcher.Constraint("Horizontal", 7, 3, 8, 3))
sketch15.addConstraint(Sketcher.Constraint("Vertical", 4, 3, 7, 3))
sketch15.addConstraint(Sketcher.Constraint("Vertical", 5, 3, 8, 3))
sketch15.addConstraint(Sketcher.Constraint("Equal", 3, 0))
sketch15.addConstraint(Sketcher.Constraint("Diameter", 6, 22.0))
sketch15.addConstraint(Sketcher.Constraint("DistanceX", 1, 1, 1, 2, 50.0))
sketch15.addConstraint(Sketcher.Constraint("DistanceX", 6, 3, -1, 1, 28.0))
sketch15.addConstraint(Sketcher.Constraint("DistanceY", -1, 1, 6, 3, 229.0))
sketch15.addConstraint(Sketcher.Constraint("DistanceY", -1, 1, 0, 2, 200.0))
sketch15.addConstraint(Sketcher.Constraint("DistanceX", 4, 3, 5, 3, 31.0))
sketch15.addConstraint(Sketcher.Constraint("DistanceY", 4, 3, 7, 3, 31.0))
sketch15.addConstraint(Sketcher.Constraint("Diameter", 5, 4.423498))
sketch15.addConstraint(Sketcher.Constraint("DistanceX", 4, 3, -1, 1, 43.5))
sketch15.addConstraint(Sketcher.Constraint("DistanceY", -1, 1, 4, 3, 213.5))
sketch15.addConstraint(Sketcher.Constraint("Diameter", 4, 3.73671))
sketch15.addConstraint(Sketcher.Constraint("Diameter", 7, 3.441094))
sketch15.addConstraint(Sketcher.Constraint("Diameter", 8, 3.429716))
pad10 = body.newObject("PartDesign::Pad", "Pad009")
pad10.Profile = sketch15
pad10.Length = 7
pad10.Reversed = True

# Sketch on XY plane
sketch16 = body.newObject("Sketcher::SketchObject", "Sketch015")
sketch16.AttachmentSupport = (doc.getObject("XY_Plane"), [""])
sketch16.MapMode = "FlatFace"
sketch16.AttachmentOffset = App.Placement(V(0, 0, 7), App.Rotation())
sketch16.addGeometry(Part.ArcOfCircle(Part.Circle(V(-28, 20.7, 0), V(0, 0, 1), 2.6), math.radians(0), math.radians(180)), False)
sketch16.addGeometry(Part.LineSegment(V(-30.6, 20.7, 0), V(-30.6, 5.7, 0)), False)
sketch16.addGeometry(Part.ArcOfCircle(Part.Circle(V(-28, 5.7, 0), V(0, 0, 1), 2.6), math.radians(180), math.radians(360)), False)
sketch16.addGeometry(Part.LineSegment(V(-25.4, 5.7, 0), V(-25.4, 20.7, 0)), False)
sketch16.addConstraint(Sketcher.Constraint("Tangent", 0, 2, 1, 1))
sketch16.addConstraint(Sketcher.Constraint("Tangent", 1, 2, 2, 1))
sketch16.addConstraint(Sketcher.Constraint("Tangent", 2, 2, 3, 1))
sketch16.addConstraint(Sketcher.Constraint("Tangent", 3, 2, 0, 1))
sketch16.addConstraint(Sketcher.Constraint("Vertical", 1))
sketch16.addConstraint(Sketcher.Constraint("Vertical", 3))
sketch16.addConstraint(Sketcher.Constraint("Radius", 0, 2.6))
sketch16.addConstraint(Sketcher.Constraint("DistanceY", 1, 2, 1, 1, 15.0))
sketch16.addConstraint(Sketcher.Constraint("DistanceX", 0, 3, -1, 1, 28.0))
sketch16.addConstraint(Sketcher.Constraint("DistanceY", -1, 1, 0, 3, 20.702306))
pocket5 = body.newObject("PartDesign::Pocket", "Pocket004")
pocket5.Profile = sketch16
pocket5.Length = 7

doc.recompute()
